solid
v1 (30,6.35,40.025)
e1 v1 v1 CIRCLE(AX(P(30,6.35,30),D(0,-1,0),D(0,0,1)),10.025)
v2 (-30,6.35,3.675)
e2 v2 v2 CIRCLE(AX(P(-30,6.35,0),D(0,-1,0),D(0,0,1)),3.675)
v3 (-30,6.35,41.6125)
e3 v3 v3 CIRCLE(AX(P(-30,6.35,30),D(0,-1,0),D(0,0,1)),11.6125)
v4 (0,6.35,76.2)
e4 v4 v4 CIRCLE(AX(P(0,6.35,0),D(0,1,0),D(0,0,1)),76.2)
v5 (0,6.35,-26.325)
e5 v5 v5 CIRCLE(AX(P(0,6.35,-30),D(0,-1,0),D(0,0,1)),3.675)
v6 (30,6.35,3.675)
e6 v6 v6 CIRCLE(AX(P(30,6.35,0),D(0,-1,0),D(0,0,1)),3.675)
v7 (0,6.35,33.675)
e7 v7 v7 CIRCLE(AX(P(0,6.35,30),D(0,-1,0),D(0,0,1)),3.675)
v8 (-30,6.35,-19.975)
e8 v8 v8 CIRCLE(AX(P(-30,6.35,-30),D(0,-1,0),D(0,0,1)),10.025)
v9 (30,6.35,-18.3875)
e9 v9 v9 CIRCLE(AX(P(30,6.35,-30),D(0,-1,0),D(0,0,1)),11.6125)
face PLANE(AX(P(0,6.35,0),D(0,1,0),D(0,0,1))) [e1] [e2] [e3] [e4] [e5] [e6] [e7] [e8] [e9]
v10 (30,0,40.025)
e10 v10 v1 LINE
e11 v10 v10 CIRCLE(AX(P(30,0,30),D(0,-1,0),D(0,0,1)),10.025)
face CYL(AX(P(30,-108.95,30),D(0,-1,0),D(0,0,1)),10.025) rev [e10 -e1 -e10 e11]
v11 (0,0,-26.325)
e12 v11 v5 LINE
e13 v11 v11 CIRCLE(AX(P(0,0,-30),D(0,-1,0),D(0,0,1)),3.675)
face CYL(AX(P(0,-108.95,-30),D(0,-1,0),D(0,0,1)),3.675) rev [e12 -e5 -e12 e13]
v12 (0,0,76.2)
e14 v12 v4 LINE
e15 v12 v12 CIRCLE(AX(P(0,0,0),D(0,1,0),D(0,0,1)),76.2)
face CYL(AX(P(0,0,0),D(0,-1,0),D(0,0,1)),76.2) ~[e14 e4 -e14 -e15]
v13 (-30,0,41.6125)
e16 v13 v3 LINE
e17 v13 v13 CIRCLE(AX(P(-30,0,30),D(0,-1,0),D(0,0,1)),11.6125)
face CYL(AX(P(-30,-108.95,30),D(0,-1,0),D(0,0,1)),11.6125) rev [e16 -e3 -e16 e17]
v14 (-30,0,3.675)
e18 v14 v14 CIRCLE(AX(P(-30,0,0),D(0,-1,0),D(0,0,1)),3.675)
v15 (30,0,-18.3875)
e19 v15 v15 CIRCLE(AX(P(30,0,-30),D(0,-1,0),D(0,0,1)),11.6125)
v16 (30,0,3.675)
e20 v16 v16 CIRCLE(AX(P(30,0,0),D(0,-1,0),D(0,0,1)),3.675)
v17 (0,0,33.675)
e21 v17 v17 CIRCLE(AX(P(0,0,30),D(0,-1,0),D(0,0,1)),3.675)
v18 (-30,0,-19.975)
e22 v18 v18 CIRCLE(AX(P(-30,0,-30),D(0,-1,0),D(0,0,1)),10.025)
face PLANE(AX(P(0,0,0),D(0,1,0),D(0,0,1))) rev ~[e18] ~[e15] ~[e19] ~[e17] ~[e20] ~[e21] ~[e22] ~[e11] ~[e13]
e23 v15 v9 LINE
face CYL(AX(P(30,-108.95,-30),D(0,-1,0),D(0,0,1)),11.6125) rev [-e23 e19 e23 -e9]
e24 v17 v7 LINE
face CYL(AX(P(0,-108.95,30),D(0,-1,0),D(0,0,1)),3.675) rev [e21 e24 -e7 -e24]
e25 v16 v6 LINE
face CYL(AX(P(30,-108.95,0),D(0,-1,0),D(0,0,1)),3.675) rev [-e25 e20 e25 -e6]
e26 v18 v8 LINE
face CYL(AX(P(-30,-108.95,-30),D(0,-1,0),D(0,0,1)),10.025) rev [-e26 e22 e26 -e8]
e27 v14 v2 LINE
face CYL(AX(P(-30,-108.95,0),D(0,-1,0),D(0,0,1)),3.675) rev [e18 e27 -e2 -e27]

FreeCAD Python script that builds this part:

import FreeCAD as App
import Part
import Sketcher
from FreeCAD import Vector
Q = App.Units.Quantity

doc = App.newDocument("Part")
body = doc.addObject("PartDesign::Body", "Body")

# Sketch on XZ plane
sketch1 = body.newObject("Sketcher::SketchObject", "Sketch")
sketch1.AttachmentSupport = (doc.getObject("XZ_Plane"), [""])
sketch1.MapMode = "FlatFace"
sketch1.addGeometry(Part.Circle(Vector(0, 0, 0), Vector(0, 0, 1), 76), False)
sketch1.addConstraint([
    Sketcher.Constraint("Coincident", 0, 3, -1, 1),
    Sketcher.Constraint("Diameter", 0, Q("6 in")),
])
pad1 = body.newObject("PartDesign::Pad", "Pad")
pad1.Profile = sketch1
pad1.Length = Q("0.25 in")
pad1.Reversed = True

# Sketch on XZ plane
sketch2 = body.newObject("Sketcher::SketchObject", "Sketch001")
sketch2.AttachmentSupport = (doc.getObject("XZ_Plane"), [""])
sketch2.MapMode = "FlatFace"
sketch2.addGeometry([
    Part.Circle(Vector(-30, -30, 0), Vector(0, 0, 1), 10),  # 0
    Part.Circle(Vector(30, 30, 0), Vector(0, 0, 1), 10),  # 1
    Part.Circle(Vector(0, -30, 0), Vector(0, 0, 1), 3.7),  # 2
    Part.Circle(Vector(30, 0, 0), Vector(0, 0, 1), 3.7),  # 3
    Part.Circle(Vector(0, 30, 0), Vector(0, 0, 1), 3.7),  # 4
    Part.Circle(Vector(-30, 0, 0), Vector(0, 0, 1), 3.7),  # 5
    Part.Circle(Vector(30, -30, 0), Vector(0, 0, 1), 11.6),  # 6
    Part.Circle(Vector(-30, 30, 0), Vector(0, 0, 1), 11.6),  # 7
], False)
sketch2.addConstraint([
    Sketcher.Constraint("Equal", 0, 1),
    Sketcher.Constraint("Equal", 2, 3),
    Sketcher.Constraint("Equal", 3, 4),
    Sketcher.Constraint("Equal", 4, 5),
    Sketcher.Constraint("Equal", 6, 7),
    Sketcher.Constraint("Symmetric", 0, 3, 1, 3, -1, 1),
    Sketcher.Constraint("Symmetric", 2, 3, 4, 3, -1, 1),
    Sketcher.Constraint("Symmetric", 3, 3, 5, 3, -1, 1),
    Sketcher.Constraint("Symmetric", 6, 3, 7, 3, -1, 1),
    Sketcher.Constraint("Symmetric", 0, 3, 6, 3, -2),
    Sketcher.Constraint("PointOnObject", 2, 3, -2),
    Sketcher.Constraint("PointOnObject", 3, 3, -1),
    Sketcher.Constraint("Horizontal", 0, 3, 2, 3),
    Sketcher.Constraint("Vertical", 1, 3, 3, 3),
    Sketcher.Constraint("Diameter", 0, 20.05),
    Sketcher.Constraint("Diameter", 2, 7.35),
    Sketcher.Constraint("Diameter", 6, 23.225),
    Sketcher.Constraint("DistanceX", 0, 3, -1, 1, 30.0),
    Sketcher.Constraint("DistanceY", 0, 3, -1, 1, 30.0),
])
pocket1 = body.newObject("PartDesign::Pocket", "Pocket")
pocket1.Profile = sketch2
pocket1.Type = "ThroughAll"
pocket1.Midplane = True

doc.recompute()
